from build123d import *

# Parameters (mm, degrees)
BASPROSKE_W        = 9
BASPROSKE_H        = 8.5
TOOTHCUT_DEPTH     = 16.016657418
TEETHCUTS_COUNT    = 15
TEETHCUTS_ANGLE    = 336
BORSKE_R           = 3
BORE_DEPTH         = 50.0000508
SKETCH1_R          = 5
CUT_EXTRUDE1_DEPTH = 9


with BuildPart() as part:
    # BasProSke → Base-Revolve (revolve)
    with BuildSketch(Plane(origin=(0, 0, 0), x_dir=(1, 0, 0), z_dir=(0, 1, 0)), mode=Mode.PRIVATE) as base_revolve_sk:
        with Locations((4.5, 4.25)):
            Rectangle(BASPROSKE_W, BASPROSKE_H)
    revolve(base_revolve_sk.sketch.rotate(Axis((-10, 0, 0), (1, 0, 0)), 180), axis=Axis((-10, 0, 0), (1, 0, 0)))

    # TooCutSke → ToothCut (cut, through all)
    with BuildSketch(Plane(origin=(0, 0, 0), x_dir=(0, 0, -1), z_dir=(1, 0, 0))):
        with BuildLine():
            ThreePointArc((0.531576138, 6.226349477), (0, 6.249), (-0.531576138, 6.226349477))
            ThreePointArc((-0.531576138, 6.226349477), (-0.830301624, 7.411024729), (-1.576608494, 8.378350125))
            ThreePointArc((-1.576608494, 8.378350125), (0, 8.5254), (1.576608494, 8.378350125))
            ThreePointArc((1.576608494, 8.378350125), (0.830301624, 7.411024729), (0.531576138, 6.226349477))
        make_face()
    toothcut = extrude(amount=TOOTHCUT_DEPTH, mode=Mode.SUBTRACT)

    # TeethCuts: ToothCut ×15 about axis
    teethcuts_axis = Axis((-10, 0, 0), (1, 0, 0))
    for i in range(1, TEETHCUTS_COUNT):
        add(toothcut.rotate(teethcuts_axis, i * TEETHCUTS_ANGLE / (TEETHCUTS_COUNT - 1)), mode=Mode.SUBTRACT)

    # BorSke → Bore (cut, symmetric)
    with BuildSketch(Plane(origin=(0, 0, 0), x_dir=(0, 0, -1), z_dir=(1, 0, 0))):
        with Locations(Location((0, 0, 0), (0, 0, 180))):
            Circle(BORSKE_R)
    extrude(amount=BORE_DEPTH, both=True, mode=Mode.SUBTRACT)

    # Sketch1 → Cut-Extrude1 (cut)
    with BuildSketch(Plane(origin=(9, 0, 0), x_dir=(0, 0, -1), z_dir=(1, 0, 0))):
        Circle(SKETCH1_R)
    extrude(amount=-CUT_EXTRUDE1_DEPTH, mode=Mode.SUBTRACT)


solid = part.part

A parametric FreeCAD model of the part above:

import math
import FreeCAD as App
import Part
import Sketcher
from FreeCAD import Vector
Q = App.Units.Quantity


def add_polygon(sketch, points):
    """Adds a closed chain of lines whose ends are joined by coincident constraints."""
    first, n = sketch.GeometryCount, len(points)
    for a, b in zip(points, points[1:] + points[:1]):
        sketch.addGeometry(Part.LineSegment(App.Vector(*a, 0), App.Vector(*b, 0)), False)
    for i in range(n):
        sketch.addConstraint(Sketcher.Constraint("Coincident", first + i, 2, first + (i + 1) % n, 1))

doc = App.newDocument("Part")
body = doc.addObject("PartDesign::Body", "Body")

# Sketch on XZ plane
sketch1 = body.newObject("Sketcher::SketchObject", "Sketch")
sketch1.AttachmentSupport = (doc.getObject("XZ_Plane"), [""])
sketch1.MapMode = "FlatFace"
add_polygon(sketch1, [(0, -8.5), (0, 0), (9, 0), (9, -8.5)])  # lines 0-3
sketch1.addConstraint([
    Sketcher.Constraint("Vertical", 0),
    Sketcher.Constraint("Horizontal", 1),
    Sketcher.Constraint("Vertical", 2),
    Sketcher.Constraint("Horizontal", 3),
    Sketcher.Constraint("Coincident", 0, 2, -1, 1),
    Sketcher.Constraint("DistanceX", 1, 1, 1, 2, Q("9 mm")),
    Sketcher.Constraint("DistanceY", 0, 1, 0, 2, Q("8.5 mm")),
])
revolution = body.newObject("PartDesign::Revolution", "Revolution")
revolution.Profile = sketch1
revolution.ReferenceAxis = (sketch1, ["H_Axis"])
revolution.Angle = 360

# Sketch on YZ plane
sketch2 = body.newObject("Sketcher::SketchObject", "Sketch001")
sketch2.AttachmentSupport = (doc.getObject("YZ_Plane"), [""])
sketch2.MapMode = "FlatFace"
sketch2.addGeometry([
    Part.ArcOfCircle(Part.Circle(Vector(0, 0, 0), Vector(0, 0, 1), 6.249), math.radians(-4.879808), math.radians(4.879808)),
    Part.ArcOfCircle(Part.Circle(Vector(6.100541, -3.528937, 0), Vector(0, 0, 1), 3), math.radians(40.600148), math.radians(87.596535)),
    Part.ArcOfCircle(Part.Circle(Vector(0, 0, 0), Vector(0, 0, 1), 8.5254), math.radians(-10.657094), math.radians(10.657094)),
    Part.ArcOfCircle(Part.Circle(Vector(6.100541, 3.528937, 0), Vector(0, 0, 1), 3), math.radians(-87.596535), math.radians(-40.600148)),
], False)
sketch2.addConstraint([
    Sketcher.Constraint("Coincident", 0, 1, 1, 2),
    Sketcher.Constraint("Coincident", 1, 1, 2, 1),
    Sketcher.Constraint("Coincident", 2, 2, 3, 2),
    Sketcher.Constraint("Coincident", 3, 1, 0, 2),
    Sketcher.Constraint("Coincident", 0, 3, -1, 1),
    Sketcher.Constraint("Coincident", 2, 3, -1, 1),
    Sketcher.Constraint("Equal", 1, 3),
    Sketcher.Constraint("Symmetric", 1, 3, 3, 3, -1),
    Sketcher.Constraint("Radius", 1, Q("3 mm")),
    Sketcher.Constraint("Radius", 0, Q("6.249 mm")),
    Sketcher.Constraint("Radius", 2, Q("8.5254 mm")),
    Sketcher.Constraint("DistanceX", 0, 1, 1, 1, Q("2.152001 mm")),
    Sketcher.Constraint("DistanceX", -1, 1, 1, 3, Q("6.100541 mm")),
])
pocket1 = body.newObject("PartDesign::Pocket", "Pocket")
pocket1.Profile = sketch2
pocket1.Type = "ThroughAll"
pocket1.Reversed = True
doc.recompute()

polarpattern = body.newObject("PartDesign::PolarPattern", "PolarPattern")
polarpattern.Originals = [pocket1]
polarpattern.Axis = (doc.getObject("X_Axis"), [""])
polarpattern.Angle = 360
polarpattern.Occurrences = 15
body.Tip = polarpattern

# Sketch on YZ plane
sketch3 = body.newObject("Sketcher::SketchObject", "Sketch002")
sketch3.AttachmentSupport = (doc.getObject("YZ_Plane"), [""])
sketch3.MapMode = "FlatFace"
sketch3.addGeometry(Part.Circle(Vector(0, 0, 0), Vector(0, 0, 1), 3), False)
sketch3.addConstraint([
    Sketcher.Constraint("Coincident", 0, 3, -1, 1),
    Sketcher.Constraint("Diameter", 0, Q("6 mm")),
])
pocket2 = body.newObject("PartDesign::Pocket", "Pocket001")
pocket2.Profile = sketch3
pocket2.Length = 100.000102
pocket2.Midplane = True

# Sketch on YZ plane
sketch4 = body.newObject("Sketcher::SketchObject", "Sketch003")
sketch4.AttachmentSupport = (doc.getObject("YZ_Plane"), [""])
sketch4.MapMode = "FlatFace"
sketch4.AttachmentOffset = App.Placement(Vector(0, 0, 9), App.Rotation())
sketch4.addGeometry(Part.Circle(Vector(0, 0, 0), Vector(0, 0, 1), 5), False)
sketch4.addConstraint([
    Sketcher.Constraint("Coincident", 0, 3, -1, 1),
    Sketcher.Constraint("Diameter", 0, Q("10 mm")),
])
pocket3 = body.newObject("PartDesign::Pocket", "Pocket002")
pocket3.Profile = sketch4
pocket3.Length = 9

doc.recompute()
